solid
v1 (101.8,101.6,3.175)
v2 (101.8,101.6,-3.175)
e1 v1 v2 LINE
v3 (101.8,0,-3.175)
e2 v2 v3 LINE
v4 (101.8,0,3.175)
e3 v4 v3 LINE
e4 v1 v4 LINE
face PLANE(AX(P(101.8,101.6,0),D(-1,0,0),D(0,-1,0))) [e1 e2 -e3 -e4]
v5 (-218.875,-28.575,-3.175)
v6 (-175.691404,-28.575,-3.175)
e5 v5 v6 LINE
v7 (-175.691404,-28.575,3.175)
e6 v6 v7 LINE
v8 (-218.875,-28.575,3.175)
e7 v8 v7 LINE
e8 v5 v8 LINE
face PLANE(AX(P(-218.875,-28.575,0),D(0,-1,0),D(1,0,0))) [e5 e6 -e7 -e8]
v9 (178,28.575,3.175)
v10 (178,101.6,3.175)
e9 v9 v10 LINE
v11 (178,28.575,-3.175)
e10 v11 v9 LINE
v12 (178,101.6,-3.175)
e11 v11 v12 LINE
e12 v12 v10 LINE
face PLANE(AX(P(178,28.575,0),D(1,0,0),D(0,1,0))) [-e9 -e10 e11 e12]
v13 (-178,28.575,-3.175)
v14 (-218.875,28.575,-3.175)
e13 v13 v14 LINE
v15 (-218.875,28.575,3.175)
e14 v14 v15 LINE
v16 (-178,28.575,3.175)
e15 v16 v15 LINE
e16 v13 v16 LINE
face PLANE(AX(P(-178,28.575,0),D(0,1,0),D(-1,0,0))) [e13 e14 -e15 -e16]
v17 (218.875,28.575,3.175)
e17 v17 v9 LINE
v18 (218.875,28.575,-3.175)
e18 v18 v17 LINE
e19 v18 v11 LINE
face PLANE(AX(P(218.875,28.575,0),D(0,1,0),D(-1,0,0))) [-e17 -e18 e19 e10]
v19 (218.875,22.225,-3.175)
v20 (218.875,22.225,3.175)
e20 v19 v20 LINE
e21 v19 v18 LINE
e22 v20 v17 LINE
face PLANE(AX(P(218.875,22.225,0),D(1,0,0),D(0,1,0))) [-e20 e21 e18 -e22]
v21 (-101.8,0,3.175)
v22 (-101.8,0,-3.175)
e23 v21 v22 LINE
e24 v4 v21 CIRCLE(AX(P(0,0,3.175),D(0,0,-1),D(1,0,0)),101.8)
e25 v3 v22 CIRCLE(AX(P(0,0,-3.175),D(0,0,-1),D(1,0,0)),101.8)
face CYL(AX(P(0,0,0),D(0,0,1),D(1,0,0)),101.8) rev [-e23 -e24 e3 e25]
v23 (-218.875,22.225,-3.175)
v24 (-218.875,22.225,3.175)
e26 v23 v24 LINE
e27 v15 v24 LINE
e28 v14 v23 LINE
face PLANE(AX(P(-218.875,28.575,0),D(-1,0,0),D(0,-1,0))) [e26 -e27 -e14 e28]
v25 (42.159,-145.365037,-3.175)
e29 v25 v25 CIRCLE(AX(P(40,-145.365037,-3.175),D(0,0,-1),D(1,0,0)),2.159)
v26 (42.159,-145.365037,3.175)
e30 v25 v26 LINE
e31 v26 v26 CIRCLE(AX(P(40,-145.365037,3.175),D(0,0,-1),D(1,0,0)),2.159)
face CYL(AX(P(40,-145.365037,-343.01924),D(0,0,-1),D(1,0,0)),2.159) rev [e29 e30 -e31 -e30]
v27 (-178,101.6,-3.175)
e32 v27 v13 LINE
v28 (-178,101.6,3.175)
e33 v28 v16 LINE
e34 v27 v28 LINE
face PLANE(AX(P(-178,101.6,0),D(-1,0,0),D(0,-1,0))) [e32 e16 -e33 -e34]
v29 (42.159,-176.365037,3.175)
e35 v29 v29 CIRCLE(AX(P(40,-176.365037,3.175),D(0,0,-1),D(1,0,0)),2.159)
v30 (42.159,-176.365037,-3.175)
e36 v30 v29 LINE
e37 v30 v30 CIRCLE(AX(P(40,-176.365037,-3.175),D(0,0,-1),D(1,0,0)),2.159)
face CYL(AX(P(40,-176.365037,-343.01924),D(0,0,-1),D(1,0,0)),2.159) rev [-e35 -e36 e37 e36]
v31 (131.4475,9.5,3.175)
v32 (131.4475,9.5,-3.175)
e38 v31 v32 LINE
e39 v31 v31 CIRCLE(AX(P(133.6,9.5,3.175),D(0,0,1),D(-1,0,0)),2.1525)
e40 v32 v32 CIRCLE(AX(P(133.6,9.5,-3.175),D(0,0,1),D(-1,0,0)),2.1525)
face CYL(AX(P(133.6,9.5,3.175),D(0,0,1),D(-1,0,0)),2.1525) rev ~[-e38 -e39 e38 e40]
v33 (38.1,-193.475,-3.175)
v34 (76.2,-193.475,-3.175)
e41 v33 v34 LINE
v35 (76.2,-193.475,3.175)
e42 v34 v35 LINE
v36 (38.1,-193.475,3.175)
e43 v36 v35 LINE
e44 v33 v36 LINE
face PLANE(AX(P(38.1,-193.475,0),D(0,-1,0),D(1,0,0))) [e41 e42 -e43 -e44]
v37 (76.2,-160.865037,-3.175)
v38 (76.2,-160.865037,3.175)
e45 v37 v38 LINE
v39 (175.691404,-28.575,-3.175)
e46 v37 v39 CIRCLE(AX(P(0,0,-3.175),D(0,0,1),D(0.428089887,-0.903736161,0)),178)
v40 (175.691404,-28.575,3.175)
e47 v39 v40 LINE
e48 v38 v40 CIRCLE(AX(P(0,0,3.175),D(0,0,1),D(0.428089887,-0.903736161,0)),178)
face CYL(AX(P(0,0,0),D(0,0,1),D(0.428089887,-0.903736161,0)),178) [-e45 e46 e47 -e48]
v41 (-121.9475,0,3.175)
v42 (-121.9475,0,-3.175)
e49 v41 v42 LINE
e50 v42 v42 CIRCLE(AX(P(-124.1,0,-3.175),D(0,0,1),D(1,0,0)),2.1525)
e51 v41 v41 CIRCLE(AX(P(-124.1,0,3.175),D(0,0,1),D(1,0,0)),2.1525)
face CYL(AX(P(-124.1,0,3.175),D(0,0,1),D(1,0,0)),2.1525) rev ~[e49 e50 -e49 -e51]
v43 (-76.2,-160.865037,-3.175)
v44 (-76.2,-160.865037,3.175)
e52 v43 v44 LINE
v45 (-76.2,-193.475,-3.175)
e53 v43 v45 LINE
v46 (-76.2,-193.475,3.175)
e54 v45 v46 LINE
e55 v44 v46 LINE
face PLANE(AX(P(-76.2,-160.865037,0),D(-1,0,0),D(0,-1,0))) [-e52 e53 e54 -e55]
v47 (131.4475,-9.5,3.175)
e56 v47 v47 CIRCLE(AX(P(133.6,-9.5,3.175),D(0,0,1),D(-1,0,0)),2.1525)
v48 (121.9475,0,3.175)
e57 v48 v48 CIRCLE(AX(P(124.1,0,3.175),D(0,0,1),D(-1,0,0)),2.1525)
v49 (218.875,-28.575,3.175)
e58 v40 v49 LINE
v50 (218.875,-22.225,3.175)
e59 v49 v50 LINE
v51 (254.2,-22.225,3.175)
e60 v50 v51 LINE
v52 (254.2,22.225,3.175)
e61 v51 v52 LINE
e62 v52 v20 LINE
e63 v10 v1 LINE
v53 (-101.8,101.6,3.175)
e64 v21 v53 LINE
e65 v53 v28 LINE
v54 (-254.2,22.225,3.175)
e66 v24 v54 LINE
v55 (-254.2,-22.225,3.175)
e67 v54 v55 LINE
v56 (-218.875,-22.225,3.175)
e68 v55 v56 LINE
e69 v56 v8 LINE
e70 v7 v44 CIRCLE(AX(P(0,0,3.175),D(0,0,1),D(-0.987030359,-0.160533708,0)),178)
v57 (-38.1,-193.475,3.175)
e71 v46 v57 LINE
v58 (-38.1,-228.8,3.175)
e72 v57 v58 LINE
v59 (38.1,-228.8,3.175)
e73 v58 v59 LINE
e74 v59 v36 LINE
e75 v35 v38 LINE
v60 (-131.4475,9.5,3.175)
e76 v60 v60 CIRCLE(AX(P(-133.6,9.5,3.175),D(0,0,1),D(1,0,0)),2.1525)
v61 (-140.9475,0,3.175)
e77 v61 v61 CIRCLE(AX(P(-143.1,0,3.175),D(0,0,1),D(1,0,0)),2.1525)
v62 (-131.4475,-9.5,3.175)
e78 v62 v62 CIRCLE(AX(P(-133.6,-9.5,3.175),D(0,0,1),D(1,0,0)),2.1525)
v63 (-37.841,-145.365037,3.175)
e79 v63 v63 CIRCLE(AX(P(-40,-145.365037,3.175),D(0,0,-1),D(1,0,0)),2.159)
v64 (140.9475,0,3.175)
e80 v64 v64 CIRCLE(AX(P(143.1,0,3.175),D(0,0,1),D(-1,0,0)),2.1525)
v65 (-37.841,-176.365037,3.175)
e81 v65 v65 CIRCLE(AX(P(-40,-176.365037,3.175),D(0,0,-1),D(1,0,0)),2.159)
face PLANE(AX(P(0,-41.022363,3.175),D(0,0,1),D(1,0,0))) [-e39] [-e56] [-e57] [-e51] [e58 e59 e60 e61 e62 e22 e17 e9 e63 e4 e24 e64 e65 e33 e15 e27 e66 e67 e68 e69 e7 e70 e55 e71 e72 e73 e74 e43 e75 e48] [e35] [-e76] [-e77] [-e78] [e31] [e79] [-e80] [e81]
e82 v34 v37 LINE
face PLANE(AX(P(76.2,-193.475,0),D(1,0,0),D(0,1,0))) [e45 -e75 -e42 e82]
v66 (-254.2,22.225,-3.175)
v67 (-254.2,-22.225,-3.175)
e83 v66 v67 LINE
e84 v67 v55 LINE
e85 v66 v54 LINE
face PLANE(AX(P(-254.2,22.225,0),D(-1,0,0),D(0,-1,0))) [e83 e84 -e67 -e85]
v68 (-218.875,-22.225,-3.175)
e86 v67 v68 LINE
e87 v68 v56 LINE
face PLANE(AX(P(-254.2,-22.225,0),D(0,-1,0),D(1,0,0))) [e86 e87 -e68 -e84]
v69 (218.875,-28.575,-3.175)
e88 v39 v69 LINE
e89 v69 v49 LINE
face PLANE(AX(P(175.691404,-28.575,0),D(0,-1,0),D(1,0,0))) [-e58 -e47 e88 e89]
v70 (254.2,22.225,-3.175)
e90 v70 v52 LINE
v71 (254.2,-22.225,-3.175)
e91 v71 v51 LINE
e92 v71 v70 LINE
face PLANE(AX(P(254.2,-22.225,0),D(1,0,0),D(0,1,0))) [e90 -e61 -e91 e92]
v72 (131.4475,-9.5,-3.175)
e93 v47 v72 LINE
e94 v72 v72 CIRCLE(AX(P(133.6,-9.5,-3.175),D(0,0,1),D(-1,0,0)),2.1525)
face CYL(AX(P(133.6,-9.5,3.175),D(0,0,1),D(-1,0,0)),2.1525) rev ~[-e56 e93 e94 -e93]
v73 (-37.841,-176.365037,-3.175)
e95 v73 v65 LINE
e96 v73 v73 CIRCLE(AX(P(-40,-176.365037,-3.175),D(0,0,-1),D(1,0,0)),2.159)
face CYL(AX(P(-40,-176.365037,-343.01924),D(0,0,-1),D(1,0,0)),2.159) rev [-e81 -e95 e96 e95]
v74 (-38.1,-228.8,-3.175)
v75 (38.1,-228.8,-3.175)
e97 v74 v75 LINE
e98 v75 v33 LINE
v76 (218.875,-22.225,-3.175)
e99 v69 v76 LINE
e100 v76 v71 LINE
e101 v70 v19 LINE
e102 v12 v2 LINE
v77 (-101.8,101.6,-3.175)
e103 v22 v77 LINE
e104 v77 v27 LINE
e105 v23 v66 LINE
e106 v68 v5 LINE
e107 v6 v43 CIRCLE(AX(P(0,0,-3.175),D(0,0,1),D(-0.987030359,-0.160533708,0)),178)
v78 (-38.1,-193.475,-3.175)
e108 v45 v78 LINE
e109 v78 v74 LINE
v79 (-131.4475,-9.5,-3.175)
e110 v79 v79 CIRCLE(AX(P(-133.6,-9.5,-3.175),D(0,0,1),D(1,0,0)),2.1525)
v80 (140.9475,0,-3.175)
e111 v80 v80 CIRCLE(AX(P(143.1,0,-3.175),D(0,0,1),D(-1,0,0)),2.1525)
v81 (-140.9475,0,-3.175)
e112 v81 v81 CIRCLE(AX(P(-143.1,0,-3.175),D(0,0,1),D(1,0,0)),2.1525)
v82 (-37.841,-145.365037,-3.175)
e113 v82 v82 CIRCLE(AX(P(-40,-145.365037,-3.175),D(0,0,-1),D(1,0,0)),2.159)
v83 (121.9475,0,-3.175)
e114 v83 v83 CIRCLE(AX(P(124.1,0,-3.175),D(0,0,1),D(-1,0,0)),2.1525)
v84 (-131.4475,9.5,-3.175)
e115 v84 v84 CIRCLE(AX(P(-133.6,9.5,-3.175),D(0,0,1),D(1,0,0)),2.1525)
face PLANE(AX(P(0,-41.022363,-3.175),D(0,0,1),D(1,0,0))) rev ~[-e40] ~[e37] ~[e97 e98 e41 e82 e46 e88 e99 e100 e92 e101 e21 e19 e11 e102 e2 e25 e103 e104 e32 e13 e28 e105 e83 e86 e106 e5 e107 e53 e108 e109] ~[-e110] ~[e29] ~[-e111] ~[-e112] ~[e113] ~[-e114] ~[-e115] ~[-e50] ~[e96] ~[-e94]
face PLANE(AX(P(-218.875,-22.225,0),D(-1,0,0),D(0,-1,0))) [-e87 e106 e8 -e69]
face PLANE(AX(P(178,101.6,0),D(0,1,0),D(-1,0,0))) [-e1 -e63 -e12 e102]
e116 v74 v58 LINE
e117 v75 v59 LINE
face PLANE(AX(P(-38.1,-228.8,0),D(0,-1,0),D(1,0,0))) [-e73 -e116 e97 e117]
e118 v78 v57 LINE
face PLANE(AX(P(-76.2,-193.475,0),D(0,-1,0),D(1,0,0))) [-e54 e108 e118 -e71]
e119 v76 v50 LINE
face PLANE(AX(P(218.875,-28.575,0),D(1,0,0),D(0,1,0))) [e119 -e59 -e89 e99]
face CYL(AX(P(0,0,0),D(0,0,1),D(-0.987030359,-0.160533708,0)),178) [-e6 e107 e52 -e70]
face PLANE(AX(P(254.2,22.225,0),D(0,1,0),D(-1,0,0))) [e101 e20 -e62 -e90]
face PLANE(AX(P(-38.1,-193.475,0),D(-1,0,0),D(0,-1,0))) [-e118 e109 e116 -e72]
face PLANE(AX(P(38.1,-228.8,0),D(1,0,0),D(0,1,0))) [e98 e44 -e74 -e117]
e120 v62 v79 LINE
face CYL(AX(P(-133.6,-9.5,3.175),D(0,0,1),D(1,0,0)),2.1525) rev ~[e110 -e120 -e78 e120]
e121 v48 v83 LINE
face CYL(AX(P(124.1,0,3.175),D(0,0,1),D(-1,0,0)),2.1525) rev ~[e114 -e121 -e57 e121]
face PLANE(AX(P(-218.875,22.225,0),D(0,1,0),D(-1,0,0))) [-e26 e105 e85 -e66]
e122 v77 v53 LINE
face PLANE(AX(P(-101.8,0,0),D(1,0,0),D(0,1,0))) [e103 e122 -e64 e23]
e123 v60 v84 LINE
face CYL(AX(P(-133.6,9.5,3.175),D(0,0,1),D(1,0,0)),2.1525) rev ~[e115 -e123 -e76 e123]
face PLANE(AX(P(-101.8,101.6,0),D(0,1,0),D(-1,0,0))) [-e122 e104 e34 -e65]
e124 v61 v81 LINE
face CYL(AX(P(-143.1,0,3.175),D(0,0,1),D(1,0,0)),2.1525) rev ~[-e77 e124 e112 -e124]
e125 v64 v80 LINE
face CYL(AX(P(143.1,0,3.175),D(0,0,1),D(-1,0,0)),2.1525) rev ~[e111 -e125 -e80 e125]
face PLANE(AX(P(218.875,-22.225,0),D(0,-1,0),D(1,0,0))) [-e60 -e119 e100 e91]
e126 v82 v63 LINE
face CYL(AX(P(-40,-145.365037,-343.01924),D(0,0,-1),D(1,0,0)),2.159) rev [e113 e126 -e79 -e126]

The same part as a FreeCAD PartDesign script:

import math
import FreeCAD as App
import Part
import Sketcher

V = App.Vector
Q = App.Units.Quantity

doc = App.newDocument("Part")
body = doc.addObject("PartDesign::Body", "Body")

# Sketch on XY plane
sketch1 = body.newObject("Sketcher::SketchObject", "Sketch")
sketch1.AttachmentSupport = (doc.getObject("XY_Plane"), [""])
sketch1.MapMode = "FlatFace"
sketch1.addGeometry(Part.LineSegment(V(-101.8, 0, 0), V(-101.8, 101.6, 0)), False)
sketch1.addGeometry(Part.LineSegment(V(-101.8, 101.6, 0), V(-178, 101.6, 0)), False)
sketch1.addGeometry(Part.LineSegment(V(-178, 101.6, 0), V(-178, 28.575, 0)), False)
sketch1.addGeometry(Part.LineSegment(V(-178, 28.575, 0), V(-218.875, 28.575, 0)), False)
sketch1.addGeometry(Part.LineSegment(V(-218.875, 28.575, 0), V(-218.875, 22.225, 0)), False)
sketch1.addGeometry(Part.LineSegment(V(-218.875, 22.225, 0), V(-254.2, 22.225, 0)), False)
sketch1.addGeometry(Part.LineSegment(V(-254.2, 22.225, 0), V(-254.2, -22.225, 0)), False)
sketch1.addGeometry(Part.LineSegment(V(-254.2, -22.225, 0), V(-218.875, -22.225, 0)), False)
sketch1.addGeometry(Part.LineSegment(V(-218.875, -22.225, 0), V(-218.875, -28.575, 0)), False)
sketch1.addGeometry(Part.LineSegment(V(-218.875, -28.575, 0), V(-175.691404, -28.575, 0)), False)
sketch1.addGeometry(Part.ArcOfCircle(Part.Circle(V(0, 0, 0), V(0, 0, 1), 178), math.radians(-170.762124), math.radians(-115.346401)), False)
sketch1.addGeometry(Part.LineSegment(V(-76.2, -160.865037, 0), V(-76.2, -193.475, 0)), False)
sketch1.addGeometry(Part.LineSegment(V(-76.2, -193.475, 0), V(-38.1, -193.475, 0)), False)
sketch1.addGeometry(Part.LineSegment(V(-38.1, -193.475, 0), V(-38.1, -228.8, 0)), False)
sketch1.addGeometry(Part.LineSegment(V(-38.1, -228.8, 0), V(38.1, -228.8, 0)), False)
sketch1.addGeometry(Part.LineSegment(V(38.1, -228.8, 0), V(38.1, -193.475, 0)), False)
sketch1.addGeometry(Part.LineSegment(V(38.1, -193.475, 0), V(76.2, -193.475, 0)), False)
sketch1.addGeometry(Part.LineSegment(V(76.2, -193.475, 0), V(76.2, -160.865037, 0)), False)
sketch1.addGeometry(Part.ArcOfCircle(Part.Circle(V(0, 0, 0), V(0, 0, 1), 178), math.radians(-64.653599), math.radians(-9.237876)), False)
sketch1.addGeometry(Part.LineSegment(V(175.691404, -28.575, 0), V(218.875, -28.575, 0)), False)
sketch1.addGeometry(Part.LineSegment(V(218.875, -28.575, 0), V(218.875, -22.225, 0)), False)
sketch1.addGeometry(Part.LineSegment(V(218.875, -22.225, 0), V(254.2, -22.225, 0)), False)
sketch1.addGeometry(Part.LineSegment(V(254.2, -22.225, 0), V(254.2, 22.225, 0)), False)
sketch1.addGeometry(Part.LineSegment(V(254.2, 22.225, 0), V(218.875, 22.225, 0)), False)
sketch1.addGeometry(Part.LineSegment(V(218.875, 22.225, 0), V(218.875, 28.575, 0)), False)
sketch1.addGeometry(Part.LineSegment(V(218.875, 28.575, 0), V(178, 28.575, 0)), False)
sketch1.addGeometry(Part.LineSegment(V(178, 28.575, 0), V(178, 101.6, 0)), False)
sketch1.addGeometry(Part.LineSegment(V(178, 101.6, 0), V(101.8, 101.6, 0)), False)
sketch1.addGeometry(Part.LineSegment(V(101.8, 101.6, 0), V(101.8, 0, 0)), False)
sketch1.addGeometry(Part.ArcOfCircle(Part.Circle(V(0, 0, 0), V(0, 0, 1), 101.8), math.radians(180), math.radians(360)), False)
sketch1.addConstraint(Sketcher.Constraint("Coincident", 0, 2, 1, 1))
sketch1.addConstraint(Sketcher.Constraint("Coincident", 1, 2, 2, 1))
sketch1.addConstraint(Sketcher.Constraint("Coincident", 2, 2, 3, 1))
sketch1.addConstraint(Sketcher.Constraint("Coincident", 3, 2, 4, 1))
sketch1.addConstraint(Sketcher.Constraint("Coincident", 4, 2, 5, 1))
sketch1.addConstraint(Sketcher.Constraint("Coincident", 5, 2, 6, 1))
sketch1.addConstraint(Sketcher.Constraint("Coincident", 6, 2, 7, 1))
sketch1.addConstraint(Sketcher.Constraint("Coincident", 7, 2, 8, 1))
sketch1.addConstraint(Sketcher.Constraint("Coincident", 8, 2, 9, 1))
sketch1.addConstraint(Sketcher.Constraint("Coincident", 9, 2, 10, 1))
sketch1.addConstraint(Sketcher.Constraint("Coincident", 10, 2, 11, 1))
sketch1.addConstraint(Sketcher.Constraint("Coincident", 11, 2, 12, 1))
sketch1.addConstraint(Sketcher.Constraint("Coincident", 12, 2, 13, 1))
sketch1.addConstraint(Sketcher.Constraint("Coincident", 13, 2, 14, 1))
sketch1.addConstraint(Sketcher.Constraint("Coincident", 14, 2, 15, 1))
sketch1.addConstraint(Sketcher.Constraint("Coincident", 15, 2, 16, 1))
sketch1.addConstraint(Sketcher.Constraint("Coincident", 16, 2, 17, 1))
sketch1.addConstraint(Sketcher.Constraint("Coincident", 17, 2, 18, 1))
sketch1.addConstraint(Sketcher.Constraint("Coincident", 18, 2, 19, 1))
sketch1.addConstraint(Sketcher.Constraint("Coincident", 19, 2, 20, 1))
sketch1.addConstraint(Sketcher.Constraint("Coincident", 20, 2, 21, 1))
sketch1.addConstraint(Sketcher.Constraint("Coincident", 21, 2, 22, 1))
sketch1.addConstraint(Sketcher.Constraint("Coincident", 22, 2, 23, 1))
sketch1.addConstraint(Sketcher.Constraint("Coincident", 23, 2, 24, 1))
sketch1.addConstraint(Sketcher.Constraint("Coincident", 24, 2, 25, 1))
sketch1.addConstraint(Sketcher.Constraint("Coincident", 25, 2, 26, 1))
sketch1.addConstraint(Sketcher.Constraint("Coincident", 26, 2, 27, 1))
sketch1.addConstraint(Sketcher.Constraint("Coincident", 27, 2, 28, 1))
sketch1.addConstraint(Sketcher.Constraint("Tangent", 28, 2, 29, 2))
sketch1.addConstraint(Sketcher.Constraint("Tangent", 29, 1, 0, 1))
sketch1.addConstraint(Sketcher.Constraint("Vertical", 0))
sketch1.addConstraint(Sketcher.Constraint("Horizontal", 1))
sketch1.addConstraint(Sketcher.Constraint("Vertical", 2))
sketch1.addConstraint(Sketcher.Constraint("Horizontal", 3))
sketch1.addConstraint(Sketcher.Constraint("Vertical", 4))
sketch1.addConstraint(Sketcher.Constraint("Horizontal", 5))
sketch1.addConstraint(Sketcher.Constraint("Vertical", 6))
sketch1.addConstraint(Sketcher.Constraint("Horizontal", 7))
sketch1.addConstraint(Sketcher.Constraint("Vertical", 8))
sketch1.addConstraint(Sketcher.Constraint("Horizontal", 9))
sketch1.addConstraint(Sketcher.Constraint("Vertical", 11))
sketch1.addConstraint(Sketcher.Constraint("Horizontal", 12))
sketch1.addConstraint(Sketcher.Constraint("Vertical", 13))
sketch1.addConstraint(Sketcher.Constraint("Horizontal", 14))
sketch1.addConstraint(Sketcher.Constraint("Vertical", 15))
sketch1.addConstraint(Sketcher.Constraint("Horizontal", 16))
sketch1.addConstraint(Sketcher.Constraint("Vertical", 17))
sketch1.addConstraint(Sketcher.Constraint("Horizontal", 19))
sketch1.addConstraint(Sketcher.Constraint("Vertical", 20))
sketch1.addConstraint(Sketcher.Constraint("Horizontal", 21))
sketch1.addConstraint(Sketcher.Constraint("Vertical", 22))
sketch1.addConstraint(Sketcher.Constraint("Horizontal", 23))
sketch1.addConstraint(Sketcher.Constraint("Vertical", 24))
sketch1.addConstraint(Sketcher.Constraint("Horizontal", 25))
sketch1.addConstraint(Sketcher.Constraint("Vertical", 26))
sketch1.addConstraint(Sketcher.Constraint("Horizontal", 27))
sketch1.addConstraint(Sketcher.Constraint("Vertical", 28))
sketch1.addConstraint(Sketcher.Constraint("Coincident", 10, 3, -1, 1))
sketch1.addConstraint(Sketcher.Constraint("Coincident", 18, 3, -1, 1))
sketch1.addConstraint(Sketcher.Constraint("Coincident", 29, 3, -1, 1))
sketch1.addConstraint(Sketcher.Constraint("Equal", 10, 18))
sketch1.addConstraint(Sketcher.Constraint("Symmetric", 3, 2, 19, 2, -1, 1))
sketch1.addConstraint(Sketcher.Constraint("Symmetric", 5, 2, 21, 2, -1, 1))
sketch1.addConstraint(Sketcher.Constraint("Symmetric", 7, 2, 23, 2, -1, 1))
sketch1.addConstraint(Sketcher.Constraint("Symmetric", 12, 2, 15, 2, -2))
sketch1.addConstraint(Sketcher.Constraint("Symmetric", 8, 2, 19, 2, -2))
sketch1.addConstraint(Sketcher.Constraint("Symmetric", 2, 2, 25, 2, -2))
sketch1.addConstraint(Sketcher.Constraint("Horizontal", 10, 2, 17, 2))
sketch1.addConstraint(Sketcher.Constraint("Horizontal", 7, 2, 20, 2))
sketch1.addConstraint(Sketcher.Constraint("Horizontal", 1, 2, 26, 2))
sketch1.addConstraint(Sketcher.Constraint("Equal", 1, 14))
sketch1.addConstraint(Sketcher.Constraint("Equal", 23, 13))
sketch1.addConstraint(Sketcher.Constraint("DistanceX", 1, 2, 1, 1, Q("3 in")))
sketch1.addConstraint(Sketcher.Constraint("DistanceY", 0, 1, 0, 2, Q("4 in")))
sketch1.addConstraint(Sketcher.Constraint("DistanceX", 12, 1, 12, 2, Q("1.5 in")))
sketch1.addConstraint(Sketcher.Constraint("DistanceX", 5, 2, 2, 2, Q("3 in")))
sketch1.addConstraint(Sketcher.Constraint("DistanceY", 6, 2, 3, 2, Q("2 in")))
sketch1.addConstraint(Sketcher.Constraint("DistanceY", 4, 2, 4, 1, Q("0.25 in")))
sketch1.addConstraint(Sketcher.Constraint("Radius", 10, Q("178 mm")))
sketch1.addConstraint(Sketcher.Constraint("Radius", 29, Q("101.8 mm")))
sketch1.addConstraint(Sketcher.Constraint("DistanceX", 3, 2, 3, 1, Q("40.875 mm")))
sketch1.addConstraint(Sketcher.Constraint("DistanceY", 11, 2, -1, 1, Q("193.475 mm")))
pad1 = body.newObject("PartDesign::Pad", "Pad")
pad1.Profile = sketch1
pad1.Length = Q("0.25 in")
pad1.Midplane = True

# Sketch on XY plane
sketch2 = body.newObject("Sketcher::SketchObject", "Sketch001")
sketch2.AttachmentSupport = (doc.getObject("XY_Plane"), [""])
sketch2.MapMode = "FlatFace"
sketch2.AttachmentOffset = App.Placement(V(0, 0, 0.125 * 25.4), App.Rotation())
sketch2.addGeometry(Part.Circle(V(-133.6, 9.5, 0), V(0, 0, 1), 2.1525), False)
sketch2.addGeometry(Part.Circle(V(-124.1, 0, 0), V(0, 0, 1), 2.1525), False)
sketch2.addGeometry(Part.Circle(V(-143.1, 0, 0), V(0, 0, 1), 2.1525), False)
sketch2.addGeometry(Part.Circle(V(-133.6, -9.5, 0), V(0, 0, 1), 2.1525), False)
sketch2.addGeometry(Part.Circle(V(133.6, -9.5, 0), V(0, 0, 1), 2.1525), False)
sketch2.addGeometry(Part.Circle(V(143.1, 0, 0), V(0, 0, 1), 2.1525), False)
sketch2.addGeometry(Part.Circle(V(124.1, 0, 0), V(0, 0, 1), 2.1525), False)
sketch2.addGeometry(Part.Circle(V(133.6, 9.5, 0), V(0, 0, 1), 2.1525), False)
sketch2.addConstraint(Sketcher.Constraint("Equal", 0, 1))
sketch2.addConstraint(Sketcher.Constraint("Equal", 1, 2))
sketch2.addConstraint(Sketcher.Constraint("Equal", 2, 3))
sketch2.addConstraint(Sketcher.Constraint("Equal", 3, 4))
sketch2.addConstraint(Sketcher.Constraint("Equal", 4, 5))
sketch2.addConstraint(Sketcher.Constraint("Equal", 5, 6))
sketch2.addConstraint(Sketcher.Constraint("Equal", 6, 7))
sketch2.addConstraint(Sketcher.Constraint("Symmetric", 0, 3, 4, 3, -1, 1))
sketch2.addConstraint(Sketcher.Constraint("Symmetric", 2, 3, 5, 3, -1, 1))
sketch2.addConstraint(Sketcher.Constraint("Symmetric", 1, 3, 6, 3, -1, 1))
sketch2.addConstraint(Sketcher.Constraint("Symmetric", 3, 3, 7, 3, -1, 1))
sketch2.addConstraint(Sketcher.Constraint("Symmetric", 3, 3, 4, 3, -2))
sketch2.addConstraint(Sketcher.Constraint("PointOnObject", 1, 3, -1))
sketch2.addConstraint(Sketcher.Constraint("PointOnObject", 2, 3, -1))
sketch2.addConstraint(Sketcher.Constraint("Diameter", 0, Q("4.305 mm")))
sketch2.addConstraint(Sketcher.Constraint("DistanceX", 0, 3, -1, 1, Q("133.6 mm")))
sketch2.addConstraint(Sketcher.Constraint("DistanceY", -1, 1, 0, 3, Q("9.5 mm")))
sketch2.addConstraint(Sketcher.Constraint("DistanceX", 1, 3, -1, 1, Q("124.1 mm")))
sketch2.addConstraint(Sketcher.Constraint("DistanceX", 2, 3, -1, 1, Q("143.1 mm")))
pocket1 = body.newObject("PartDesign::Pocket", "Pocket")
pocket1.Profile = sketch2
pocket1.Type = "ThroughAll"

# Sketch on XY plane
sketch3 = body.newObject("Sketcher::SketchObject", "Sketch002")
sketch3.AttachmentSupport = (doc.getObject("XY_Plane"), [""])
sketch3.MapMode = "FlatFace"
sketch3.addGeometry(Part.Circle(V(40, -145.365037, 0), V(0, 0, 1), 2.159), False)
sketch3.addGeometry(Part.Circle(V(-40, -145.365037, 0), V(0, 0, 1), 2.159), False)
sketch3.addGeometry(Part.Circle(V(-40, -176.365037, 0), V(0, 0, 1), 2.159), False)
sketch3.addGeometry(Part.Circle(V(40, -176.365037, 0), V(0, 0, 1), 2.159), False)
sketch3.addConstraint(Sketcher.Constraint("Equal", 0, 1))
sketch3.addConstraint(Sketcher.Constraint("Equal", 1, 2))
sketch3.addConstraint(Sketcher.Constraint("Equal", 2, 3))
sketch3.addConstraint(Sketcher.Constraint("Symmetric", 0, 3, 1, 3, -2))
sketch3.addConstraint(Sketcher.Constraint("Symmetric", 2, 3, 3, 3, -2))
sketch3.addConstraint(Sketcher.Constraint("Vertical", 1, 3, 2, 3))
sketch3.addConstraint(Sketcher.Constraint("Diameter", 0, Q("0.17 in")))
sketch3.addConstraint(Sketcher.Constraint("DistanceX", -1, 1, 0, 3, Q("40 mm")))
sketch3.addConstraint(Sketcher.Constraint("DistanceY", 2, 3, 1, 3, Q("31 mm")))
sketch3.addConstraint(Sketcher.Constraint("DistanceY", 0, 3, -1, 1, Q("145.365037 mm")))
pocket2 = body.newObject("PartDesign::Pocket", "Pocket001")
pocket2.Profile = sketch3
pocket2.Type = "ThroughAll"
pocket2.Midplane = True

doc.recompute()
